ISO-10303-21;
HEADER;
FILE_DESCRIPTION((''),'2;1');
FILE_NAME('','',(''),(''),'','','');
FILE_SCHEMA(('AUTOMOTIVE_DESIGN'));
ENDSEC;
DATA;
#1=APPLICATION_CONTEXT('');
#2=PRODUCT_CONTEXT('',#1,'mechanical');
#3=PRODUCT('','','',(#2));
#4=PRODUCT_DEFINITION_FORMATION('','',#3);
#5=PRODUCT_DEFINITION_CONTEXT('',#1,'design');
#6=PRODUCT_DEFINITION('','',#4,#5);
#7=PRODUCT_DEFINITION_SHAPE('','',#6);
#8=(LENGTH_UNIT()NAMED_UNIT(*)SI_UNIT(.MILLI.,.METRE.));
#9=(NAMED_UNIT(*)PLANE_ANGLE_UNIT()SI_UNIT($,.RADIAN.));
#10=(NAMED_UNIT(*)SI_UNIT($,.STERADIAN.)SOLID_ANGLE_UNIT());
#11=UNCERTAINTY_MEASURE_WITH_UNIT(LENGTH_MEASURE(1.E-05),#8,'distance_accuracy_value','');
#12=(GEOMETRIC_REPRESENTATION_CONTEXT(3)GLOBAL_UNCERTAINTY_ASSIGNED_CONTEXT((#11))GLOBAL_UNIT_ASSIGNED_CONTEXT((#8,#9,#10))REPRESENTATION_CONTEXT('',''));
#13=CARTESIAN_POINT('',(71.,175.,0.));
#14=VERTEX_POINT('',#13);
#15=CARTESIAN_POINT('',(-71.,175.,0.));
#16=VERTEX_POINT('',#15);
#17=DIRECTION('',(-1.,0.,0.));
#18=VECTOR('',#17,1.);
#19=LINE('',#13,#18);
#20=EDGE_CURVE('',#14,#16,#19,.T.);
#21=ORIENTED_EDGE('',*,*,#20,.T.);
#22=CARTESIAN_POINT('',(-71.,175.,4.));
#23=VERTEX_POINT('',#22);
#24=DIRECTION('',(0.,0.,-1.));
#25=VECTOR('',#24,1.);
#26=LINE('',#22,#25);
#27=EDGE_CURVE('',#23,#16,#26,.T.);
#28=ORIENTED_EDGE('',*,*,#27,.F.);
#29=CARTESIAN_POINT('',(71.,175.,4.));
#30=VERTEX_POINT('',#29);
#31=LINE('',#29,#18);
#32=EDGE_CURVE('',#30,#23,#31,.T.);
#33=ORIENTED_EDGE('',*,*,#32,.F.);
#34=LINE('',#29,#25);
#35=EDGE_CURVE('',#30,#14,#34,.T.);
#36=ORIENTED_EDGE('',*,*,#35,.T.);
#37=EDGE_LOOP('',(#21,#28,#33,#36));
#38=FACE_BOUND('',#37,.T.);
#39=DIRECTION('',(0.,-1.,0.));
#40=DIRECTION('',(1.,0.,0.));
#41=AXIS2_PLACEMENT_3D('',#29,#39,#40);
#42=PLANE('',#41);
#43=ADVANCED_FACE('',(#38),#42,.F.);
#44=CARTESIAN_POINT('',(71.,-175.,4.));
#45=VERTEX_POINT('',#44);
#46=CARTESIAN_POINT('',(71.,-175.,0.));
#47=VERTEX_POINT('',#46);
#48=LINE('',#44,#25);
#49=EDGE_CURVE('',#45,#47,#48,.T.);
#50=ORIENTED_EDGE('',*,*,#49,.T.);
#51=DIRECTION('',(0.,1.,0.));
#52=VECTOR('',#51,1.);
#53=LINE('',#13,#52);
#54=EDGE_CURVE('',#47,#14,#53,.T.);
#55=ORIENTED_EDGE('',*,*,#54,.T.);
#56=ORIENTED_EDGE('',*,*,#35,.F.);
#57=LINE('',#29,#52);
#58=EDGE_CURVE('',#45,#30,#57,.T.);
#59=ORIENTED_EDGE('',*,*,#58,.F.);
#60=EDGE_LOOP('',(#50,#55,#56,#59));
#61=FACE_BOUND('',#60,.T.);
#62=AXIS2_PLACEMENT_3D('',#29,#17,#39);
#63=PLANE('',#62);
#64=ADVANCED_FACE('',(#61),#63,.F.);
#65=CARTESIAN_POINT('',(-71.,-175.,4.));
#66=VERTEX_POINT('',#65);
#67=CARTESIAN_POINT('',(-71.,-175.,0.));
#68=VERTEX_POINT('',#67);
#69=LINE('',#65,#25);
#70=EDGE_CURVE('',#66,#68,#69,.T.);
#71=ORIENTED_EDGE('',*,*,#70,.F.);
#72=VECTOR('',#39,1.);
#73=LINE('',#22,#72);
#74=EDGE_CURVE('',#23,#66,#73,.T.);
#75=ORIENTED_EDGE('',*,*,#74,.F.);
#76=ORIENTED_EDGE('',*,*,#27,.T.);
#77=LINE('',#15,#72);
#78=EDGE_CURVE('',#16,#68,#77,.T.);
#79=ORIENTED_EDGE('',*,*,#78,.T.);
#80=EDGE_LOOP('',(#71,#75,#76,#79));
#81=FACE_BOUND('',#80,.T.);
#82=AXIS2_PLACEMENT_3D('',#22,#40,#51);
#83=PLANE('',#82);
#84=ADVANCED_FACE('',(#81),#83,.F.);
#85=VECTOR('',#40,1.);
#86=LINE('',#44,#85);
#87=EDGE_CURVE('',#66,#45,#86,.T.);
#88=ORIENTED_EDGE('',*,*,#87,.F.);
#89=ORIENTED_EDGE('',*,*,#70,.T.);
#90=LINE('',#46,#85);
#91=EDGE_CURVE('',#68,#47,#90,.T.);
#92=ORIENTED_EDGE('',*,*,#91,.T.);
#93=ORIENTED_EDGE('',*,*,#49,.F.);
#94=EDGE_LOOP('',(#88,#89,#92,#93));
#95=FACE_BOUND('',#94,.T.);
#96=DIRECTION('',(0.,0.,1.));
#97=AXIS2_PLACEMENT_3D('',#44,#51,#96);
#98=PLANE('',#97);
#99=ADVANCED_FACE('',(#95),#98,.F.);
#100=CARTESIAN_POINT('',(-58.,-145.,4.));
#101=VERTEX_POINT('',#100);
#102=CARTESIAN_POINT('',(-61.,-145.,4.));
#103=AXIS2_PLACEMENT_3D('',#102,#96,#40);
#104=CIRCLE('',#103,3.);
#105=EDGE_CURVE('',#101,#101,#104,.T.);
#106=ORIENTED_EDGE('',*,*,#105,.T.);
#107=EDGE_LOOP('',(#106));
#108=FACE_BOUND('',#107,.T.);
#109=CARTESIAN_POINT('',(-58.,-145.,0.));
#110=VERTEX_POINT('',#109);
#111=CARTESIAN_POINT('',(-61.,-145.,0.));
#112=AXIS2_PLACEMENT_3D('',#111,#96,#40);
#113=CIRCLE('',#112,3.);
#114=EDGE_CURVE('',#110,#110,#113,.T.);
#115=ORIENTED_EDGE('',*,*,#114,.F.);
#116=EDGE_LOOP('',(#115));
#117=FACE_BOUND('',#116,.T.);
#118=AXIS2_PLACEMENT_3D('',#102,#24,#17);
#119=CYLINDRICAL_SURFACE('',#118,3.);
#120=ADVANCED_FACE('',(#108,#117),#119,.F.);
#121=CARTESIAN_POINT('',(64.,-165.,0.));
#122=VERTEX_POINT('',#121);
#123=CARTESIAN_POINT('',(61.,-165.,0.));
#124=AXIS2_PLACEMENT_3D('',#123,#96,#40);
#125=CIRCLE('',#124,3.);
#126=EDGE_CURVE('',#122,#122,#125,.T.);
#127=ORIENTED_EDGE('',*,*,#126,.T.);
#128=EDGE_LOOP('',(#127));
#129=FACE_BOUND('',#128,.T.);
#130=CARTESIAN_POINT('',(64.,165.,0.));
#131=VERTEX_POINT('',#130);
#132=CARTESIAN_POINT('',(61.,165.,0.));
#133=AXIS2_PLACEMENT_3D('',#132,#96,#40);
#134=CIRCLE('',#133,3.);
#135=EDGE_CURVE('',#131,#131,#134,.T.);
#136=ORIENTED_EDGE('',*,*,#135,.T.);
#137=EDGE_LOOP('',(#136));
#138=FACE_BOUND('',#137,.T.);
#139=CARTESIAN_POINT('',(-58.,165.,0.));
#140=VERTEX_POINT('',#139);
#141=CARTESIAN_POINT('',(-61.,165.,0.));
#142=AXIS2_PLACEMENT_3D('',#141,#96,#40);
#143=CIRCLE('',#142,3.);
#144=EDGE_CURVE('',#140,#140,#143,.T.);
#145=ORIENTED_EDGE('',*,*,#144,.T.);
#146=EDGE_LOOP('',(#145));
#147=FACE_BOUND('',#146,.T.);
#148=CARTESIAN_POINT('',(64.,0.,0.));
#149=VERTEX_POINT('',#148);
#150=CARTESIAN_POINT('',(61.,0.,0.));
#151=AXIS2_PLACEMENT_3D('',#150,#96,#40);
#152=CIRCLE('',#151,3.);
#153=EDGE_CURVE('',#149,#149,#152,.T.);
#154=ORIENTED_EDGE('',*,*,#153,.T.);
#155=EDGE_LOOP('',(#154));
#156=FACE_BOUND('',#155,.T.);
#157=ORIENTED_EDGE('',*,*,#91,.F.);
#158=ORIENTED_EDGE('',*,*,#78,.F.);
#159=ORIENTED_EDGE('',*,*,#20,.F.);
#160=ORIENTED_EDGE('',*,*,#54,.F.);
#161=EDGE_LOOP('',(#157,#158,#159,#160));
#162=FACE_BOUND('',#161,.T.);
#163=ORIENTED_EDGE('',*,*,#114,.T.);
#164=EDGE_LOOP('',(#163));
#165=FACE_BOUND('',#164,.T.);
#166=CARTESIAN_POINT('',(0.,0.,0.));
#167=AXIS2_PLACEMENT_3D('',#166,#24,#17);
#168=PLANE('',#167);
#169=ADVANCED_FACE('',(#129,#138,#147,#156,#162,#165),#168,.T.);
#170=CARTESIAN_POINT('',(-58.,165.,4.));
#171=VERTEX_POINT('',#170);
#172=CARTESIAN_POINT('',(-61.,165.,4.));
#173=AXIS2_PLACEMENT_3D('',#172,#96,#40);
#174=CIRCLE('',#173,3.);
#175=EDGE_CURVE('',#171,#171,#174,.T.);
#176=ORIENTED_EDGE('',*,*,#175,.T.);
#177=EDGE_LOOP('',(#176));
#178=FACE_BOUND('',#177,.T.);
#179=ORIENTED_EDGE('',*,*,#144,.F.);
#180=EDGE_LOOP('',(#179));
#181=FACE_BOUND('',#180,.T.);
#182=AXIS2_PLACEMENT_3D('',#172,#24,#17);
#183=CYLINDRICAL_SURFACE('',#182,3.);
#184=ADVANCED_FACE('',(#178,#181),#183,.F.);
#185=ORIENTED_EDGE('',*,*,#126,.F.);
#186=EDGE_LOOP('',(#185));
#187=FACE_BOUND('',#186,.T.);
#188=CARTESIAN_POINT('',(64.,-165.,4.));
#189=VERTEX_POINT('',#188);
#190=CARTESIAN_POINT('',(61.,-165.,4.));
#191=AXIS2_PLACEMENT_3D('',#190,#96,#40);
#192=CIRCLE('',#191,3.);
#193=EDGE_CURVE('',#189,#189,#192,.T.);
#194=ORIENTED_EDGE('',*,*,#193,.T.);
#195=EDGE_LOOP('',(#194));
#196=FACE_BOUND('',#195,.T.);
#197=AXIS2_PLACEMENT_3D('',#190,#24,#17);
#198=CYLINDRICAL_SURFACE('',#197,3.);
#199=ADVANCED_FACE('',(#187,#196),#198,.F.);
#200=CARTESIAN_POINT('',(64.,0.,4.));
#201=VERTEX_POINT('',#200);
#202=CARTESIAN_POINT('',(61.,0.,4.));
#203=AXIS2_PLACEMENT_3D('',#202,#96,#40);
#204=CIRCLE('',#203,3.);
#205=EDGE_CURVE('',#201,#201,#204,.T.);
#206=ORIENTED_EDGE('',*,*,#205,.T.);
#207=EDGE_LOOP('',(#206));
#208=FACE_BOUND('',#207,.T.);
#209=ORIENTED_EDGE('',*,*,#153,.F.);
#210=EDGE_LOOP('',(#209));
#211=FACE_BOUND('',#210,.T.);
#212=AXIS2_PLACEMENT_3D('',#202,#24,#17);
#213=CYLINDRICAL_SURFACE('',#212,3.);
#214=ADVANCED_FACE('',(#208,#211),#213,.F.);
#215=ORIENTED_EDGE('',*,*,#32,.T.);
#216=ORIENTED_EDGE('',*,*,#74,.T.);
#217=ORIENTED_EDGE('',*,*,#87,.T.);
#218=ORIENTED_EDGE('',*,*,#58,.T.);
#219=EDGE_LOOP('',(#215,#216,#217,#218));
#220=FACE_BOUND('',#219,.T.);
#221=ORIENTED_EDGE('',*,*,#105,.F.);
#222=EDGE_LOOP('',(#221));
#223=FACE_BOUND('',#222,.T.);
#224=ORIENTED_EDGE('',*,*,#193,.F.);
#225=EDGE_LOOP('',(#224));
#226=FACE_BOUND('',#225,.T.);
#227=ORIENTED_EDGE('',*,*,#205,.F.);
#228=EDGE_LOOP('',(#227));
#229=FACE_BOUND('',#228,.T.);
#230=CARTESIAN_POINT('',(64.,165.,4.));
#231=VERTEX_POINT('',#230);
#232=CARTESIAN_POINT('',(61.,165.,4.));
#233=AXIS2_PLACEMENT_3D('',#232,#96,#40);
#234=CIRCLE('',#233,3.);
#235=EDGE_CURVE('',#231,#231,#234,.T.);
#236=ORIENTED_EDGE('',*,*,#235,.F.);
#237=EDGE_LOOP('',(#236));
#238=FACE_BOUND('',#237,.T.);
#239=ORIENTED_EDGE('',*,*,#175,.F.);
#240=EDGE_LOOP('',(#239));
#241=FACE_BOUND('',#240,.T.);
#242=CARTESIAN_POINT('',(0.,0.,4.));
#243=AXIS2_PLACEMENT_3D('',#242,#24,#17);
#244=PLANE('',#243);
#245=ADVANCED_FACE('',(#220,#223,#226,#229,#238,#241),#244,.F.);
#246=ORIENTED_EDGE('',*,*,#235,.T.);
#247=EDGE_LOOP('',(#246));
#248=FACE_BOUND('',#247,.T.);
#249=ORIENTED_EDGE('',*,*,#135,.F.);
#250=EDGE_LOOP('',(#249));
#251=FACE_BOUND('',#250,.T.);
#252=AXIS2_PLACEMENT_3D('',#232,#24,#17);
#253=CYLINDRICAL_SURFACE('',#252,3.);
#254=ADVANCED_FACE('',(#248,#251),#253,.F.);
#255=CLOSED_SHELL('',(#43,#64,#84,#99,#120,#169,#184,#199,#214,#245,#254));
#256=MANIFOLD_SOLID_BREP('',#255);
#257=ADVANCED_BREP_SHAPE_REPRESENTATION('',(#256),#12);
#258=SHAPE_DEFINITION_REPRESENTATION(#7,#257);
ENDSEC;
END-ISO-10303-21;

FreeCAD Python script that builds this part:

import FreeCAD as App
import Part
import Sketcher
from FreeCAD import Vector

doc = App.newDocument("Part")
body = doc.addObject("PartDesign::Body", "Body")

sketch1 = body.newObject("Sketcher::SketchObject", "Sketch")
sketch1.AttachmentSupport = (doc.getObject("XY_Plane"), [""])
sketch1.MapMode = "FlatFace"
sketch1.addGeometry([
    Part.LineSegment(Vector(-71, 175, 0), Vector(-71, -175, 0)),
    Part.LineSegment(Vector(-71, -175, 0), Vector(71, -175, 0)),
    Part.LineSegment(Vector(71, -175, 0), Vector(71, 175, 0)),
    Part.LineSegment(Vector(71, 175, 0), Vector(-71, 175, 0)),
    Part.Circle(Vector(-61, -145, 0), Vector(0, 0, 1), 3),
    Part.Circle(Vector(61, -165, 0), Vector(0, 0, 1), 3),
    Part.Circle(Vector(-61, 165, 0), Vector(0, 0, 1), 3),
    Part.Circle(Vector(61, 0, 0), Vector(0, 0, 1), 3),
    Part.Circle(Vector(61, 165, 0), Vector(0, 0, 1), 3),
], False)
sketch1.addConstraint([
    Sketcher.Constraint("Coincident", 0, 2, 1, 1),
    Sketcher.Constraint("Coincident", 1, 2, 2, 1),
    Sketcher.Constraint("Coincident", 2, 2, 3, 1),
    Sketcher.Constraint("Coincident", 3, 2, 0, 1),
    Sketcher.Constraint("Vertical", 0),
    Sketcher.Constraint("Horizontal", 1),
    Sketcher.Constraint("Vertical", 2),
    Sketcher.Constraint("Horizontal", 3),
    Sketcher.Constraint("Equal", 4, 5),
    Sketcher.Constraint("Equal", 5, 6),
    Sketcher.Constraint("Equal", 6, 7),
    Sketcher.Constraint("Equal", 7, 8),
    Sketcher.Constraint("Symmetric", 5, 3, 6, 3, -1, 1),
    Sketcher.Constraint("Symmetric", 0, 2, 2, 2, -1, 1),
    Sketcher.Constraint("Symmetric", 6, 3, 8, 3, -2),
    Sketcher.Constraint("PointOnObject", 7, 3, -1),
    Sketcher.Constraint("Vertical", 4, 3, 6, 3),
    Sketcher.Constraint("Vertical", 5, 3, 7, 3),
    Sketcher.Constraint("Diameter", 4, 6.0),
    Sketcher.Constraint("DistanceX", 1, 1, 1, 2, 142.0),
    Sketcher.Constraint("DistanceY", 0, 2, 0, 1, 350.0),
    Sketcher.Constraint("DistanceX", 4, 3, -1, 1, 61.0),
    Sketcher.Constraint("DistanceY", 4, 3, -1, 1, 145.0),
    Sketcher.Constraint("DistanceY", 5, 3, -1, 1, 165.0),
])
pad1 = body.newObject("PartDesign::Pad", "Pad")
pad1.Profile = sketch1
pad1.Length = 4

doc.recompute()
